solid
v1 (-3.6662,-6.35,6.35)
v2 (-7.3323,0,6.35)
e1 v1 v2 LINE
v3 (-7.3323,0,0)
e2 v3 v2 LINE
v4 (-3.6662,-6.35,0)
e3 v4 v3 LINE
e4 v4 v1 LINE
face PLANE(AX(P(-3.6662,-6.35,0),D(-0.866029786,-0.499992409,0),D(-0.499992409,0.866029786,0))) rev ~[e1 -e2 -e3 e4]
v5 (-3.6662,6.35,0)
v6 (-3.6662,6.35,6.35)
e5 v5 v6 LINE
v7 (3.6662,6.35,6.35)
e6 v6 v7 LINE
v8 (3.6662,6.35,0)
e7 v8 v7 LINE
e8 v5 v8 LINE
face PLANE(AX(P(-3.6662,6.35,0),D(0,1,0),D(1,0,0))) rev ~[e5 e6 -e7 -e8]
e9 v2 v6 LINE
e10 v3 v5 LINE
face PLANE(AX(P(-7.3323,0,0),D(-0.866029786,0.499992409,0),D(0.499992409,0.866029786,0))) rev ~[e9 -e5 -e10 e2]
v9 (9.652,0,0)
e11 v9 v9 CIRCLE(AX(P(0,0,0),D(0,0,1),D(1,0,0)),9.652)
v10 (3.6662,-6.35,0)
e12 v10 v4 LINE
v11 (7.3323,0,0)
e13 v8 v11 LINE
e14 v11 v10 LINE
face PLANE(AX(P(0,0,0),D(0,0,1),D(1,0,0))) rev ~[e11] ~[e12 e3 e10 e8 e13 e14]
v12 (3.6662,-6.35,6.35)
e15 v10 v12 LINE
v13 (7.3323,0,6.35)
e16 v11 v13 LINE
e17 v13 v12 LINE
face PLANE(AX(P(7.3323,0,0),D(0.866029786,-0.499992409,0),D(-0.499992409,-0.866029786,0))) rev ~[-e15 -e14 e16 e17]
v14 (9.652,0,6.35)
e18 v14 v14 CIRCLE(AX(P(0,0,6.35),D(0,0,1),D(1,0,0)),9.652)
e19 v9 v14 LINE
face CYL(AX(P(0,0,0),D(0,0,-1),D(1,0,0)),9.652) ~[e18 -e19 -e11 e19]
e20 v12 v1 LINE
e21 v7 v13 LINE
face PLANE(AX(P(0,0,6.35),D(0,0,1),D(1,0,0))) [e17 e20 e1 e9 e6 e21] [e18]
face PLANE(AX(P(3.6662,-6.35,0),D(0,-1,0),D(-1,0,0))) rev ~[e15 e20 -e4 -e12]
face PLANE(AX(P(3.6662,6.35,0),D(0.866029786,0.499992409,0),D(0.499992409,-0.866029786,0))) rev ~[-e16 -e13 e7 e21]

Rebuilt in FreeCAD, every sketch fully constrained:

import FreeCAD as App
import Part
import Sketcher

V = App.Vector
Q = App.Units.Quantity


def add_polygon(sketch, points):
    """Adds a closed chain of lines whose ends are joined by coincident constraints."""
    first, n = sketch.GeometryCount, len(points)
    for a, b in zip(points, points[1:] + points[:1]):
        sketch.addGeometry(Part.LineSegment(App.Vector(*a, 0), App.Vector(*b, 0)), False)
    for i in range(n):
        sketch.addConstraint(Sketcher.Constraint("Coincident", first + i, 2, first + (i + 1) % n, 1))

doc = App.newDocument("Part")
body = doc.addObject("PartDesign::Body", "Body")

# Sketch on XY plane
sketch1 = body.newObject("Sketcher::SketchObject", "Sketch")
sketch1.AttachmentSupport = (doc.getObject("XY_Plane"), [""])
sketch1.MapMode = "FlatFace"
sketch1.addGeometry(Part.Circle(V(0, 0, 0), V(0, 0, 1), 9.652), False)  # 0
add_polygon(sketch1, [(3.6662, 6.35), (7.3323, 0), (3.6662, -6.35), (-3.6662, -6.35), (-7.3323, 0), (-3.6662, 6.35)])  # lines 1-6
sketch1.addConstraint([
    Sketcher.Constraint("Horizontal", 3),
    Sketcher.Constraint("Horizontal", 6),
    Sketcher.Constraint("Coincident", 0, 3, -1, 1),
    Sketcher.Constraint("Symmetric", 1, 2, 4, 2, -1, 1),
    Sketcher.Constraint("Symmetric", 2, 2, 5, 2, -1, 1),
    Sketcher.Constraint("PointOnObject", 1, 2, -1),
    Sketcher.Constraint("Parallel", 1, 4),
    Sketcher.Constraint("Vertical", 3, 2, 5, 2),
    Sketcher.Constraint("Diameter", 0, Q("0.76 in")),
    Sketcher.Constraint("DistanceY", 3, 2, 5, 2, Q("0.5 in")),
    Sketcher.Constraint("Angle", 1, Q("-60.0005 deg")),
    Sketcher.Constraint("DistanceX", 3, 2, 1, 2, Q("0.433 in")),
])
pad1 = body.newObject("PartDesign::Pad", "Pad")
pad1.Profile = sketch1
pad1.Length = Q("0.25 in")

doc.recompute()
